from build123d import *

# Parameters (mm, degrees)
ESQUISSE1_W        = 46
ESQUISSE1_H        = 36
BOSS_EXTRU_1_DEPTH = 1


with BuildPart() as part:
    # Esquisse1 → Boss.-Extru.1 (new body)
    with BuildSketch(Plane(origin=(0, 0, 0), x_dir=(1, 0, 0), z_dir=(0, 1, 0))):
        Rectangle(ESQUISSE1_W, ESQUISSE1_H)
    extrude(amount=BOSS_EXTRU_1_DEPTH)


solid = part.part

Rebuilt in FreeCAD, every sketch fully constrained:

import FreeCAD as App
import Part
import Sketcher
Q = App.Units.Quantity

doc = App.newDocument("Part")
body = doc.addObject("PartDesign::Body", "Body")

# Sketch on XZ plane
sketch1 = body.newObject("Sketcher::SketchObject", "Sketch")
sketch1.AttachmentSupport = (doc.getObject("XZ_Plane"), [""])
sketch1.MapMode = "FlatFace"
sketch1.addGeometry(Part.LineSegment(App.Vector(-23, -18, 0), App.Vector(-23, 18, 0)), False)
sketch1.addGeometry(Part.LineSegment(App.Vector(-23, 18, 0), App.Vector(23, 18, 0)), False)
sketch1.addGeometry(Part.LineSegment(App.Vector(23, 18, 0), App.Vector(23, -18, 0)), False)
sketch1.addGeometry(Part.LineSegment(App.Vector(23, -18, 0), App.Vector(-23, -18, 0)), False)
sketch1.addConstraint(Sketcher.Constraint("Coincident", 0, 2, 1, 1))
sketch1.addConstraint(Sketcher.Constraint("Coincident", 1, 2, 2, 1))
sketch1.addConstraint(Sketcher.Constraint("Coincident", 2, 2, 3, 1))
sketch1.addConstraint(Sketcher.Constraint("Coincident", 3, 2, 0, 1))
sketch1.addConstraint(Sketcher.Constraint("Vertical", 0))
sketch1.addConstraint(Sketcher.Constraint("Horizontal", 1))
sketch1.addConstraint(Sketcher.Constraint("Vertical", 2))
sketch1.addConstraint(Sketcher.Constraint("Horizontal", 3))
sketch1.addConstraint(Sketcher.Constraint("Symmetric", 0, 2, 2, 2, -1, 1))
sketch1.addConstraint(Sketcher.Constraint("DistanceX", 1, 1, 1, 2, Q("46 mm")))
sketch1.addConstraint(Sketcher.Constraint("DistanceY", 0, 1, 0, 2, Q("36 mm")))
pad1 = body.newObject("PartDesign::Pad", "Pad")
pad1.Profile = sketch1
pad1.Length = 1
pad1.Reversed = True

doc.recompute()
